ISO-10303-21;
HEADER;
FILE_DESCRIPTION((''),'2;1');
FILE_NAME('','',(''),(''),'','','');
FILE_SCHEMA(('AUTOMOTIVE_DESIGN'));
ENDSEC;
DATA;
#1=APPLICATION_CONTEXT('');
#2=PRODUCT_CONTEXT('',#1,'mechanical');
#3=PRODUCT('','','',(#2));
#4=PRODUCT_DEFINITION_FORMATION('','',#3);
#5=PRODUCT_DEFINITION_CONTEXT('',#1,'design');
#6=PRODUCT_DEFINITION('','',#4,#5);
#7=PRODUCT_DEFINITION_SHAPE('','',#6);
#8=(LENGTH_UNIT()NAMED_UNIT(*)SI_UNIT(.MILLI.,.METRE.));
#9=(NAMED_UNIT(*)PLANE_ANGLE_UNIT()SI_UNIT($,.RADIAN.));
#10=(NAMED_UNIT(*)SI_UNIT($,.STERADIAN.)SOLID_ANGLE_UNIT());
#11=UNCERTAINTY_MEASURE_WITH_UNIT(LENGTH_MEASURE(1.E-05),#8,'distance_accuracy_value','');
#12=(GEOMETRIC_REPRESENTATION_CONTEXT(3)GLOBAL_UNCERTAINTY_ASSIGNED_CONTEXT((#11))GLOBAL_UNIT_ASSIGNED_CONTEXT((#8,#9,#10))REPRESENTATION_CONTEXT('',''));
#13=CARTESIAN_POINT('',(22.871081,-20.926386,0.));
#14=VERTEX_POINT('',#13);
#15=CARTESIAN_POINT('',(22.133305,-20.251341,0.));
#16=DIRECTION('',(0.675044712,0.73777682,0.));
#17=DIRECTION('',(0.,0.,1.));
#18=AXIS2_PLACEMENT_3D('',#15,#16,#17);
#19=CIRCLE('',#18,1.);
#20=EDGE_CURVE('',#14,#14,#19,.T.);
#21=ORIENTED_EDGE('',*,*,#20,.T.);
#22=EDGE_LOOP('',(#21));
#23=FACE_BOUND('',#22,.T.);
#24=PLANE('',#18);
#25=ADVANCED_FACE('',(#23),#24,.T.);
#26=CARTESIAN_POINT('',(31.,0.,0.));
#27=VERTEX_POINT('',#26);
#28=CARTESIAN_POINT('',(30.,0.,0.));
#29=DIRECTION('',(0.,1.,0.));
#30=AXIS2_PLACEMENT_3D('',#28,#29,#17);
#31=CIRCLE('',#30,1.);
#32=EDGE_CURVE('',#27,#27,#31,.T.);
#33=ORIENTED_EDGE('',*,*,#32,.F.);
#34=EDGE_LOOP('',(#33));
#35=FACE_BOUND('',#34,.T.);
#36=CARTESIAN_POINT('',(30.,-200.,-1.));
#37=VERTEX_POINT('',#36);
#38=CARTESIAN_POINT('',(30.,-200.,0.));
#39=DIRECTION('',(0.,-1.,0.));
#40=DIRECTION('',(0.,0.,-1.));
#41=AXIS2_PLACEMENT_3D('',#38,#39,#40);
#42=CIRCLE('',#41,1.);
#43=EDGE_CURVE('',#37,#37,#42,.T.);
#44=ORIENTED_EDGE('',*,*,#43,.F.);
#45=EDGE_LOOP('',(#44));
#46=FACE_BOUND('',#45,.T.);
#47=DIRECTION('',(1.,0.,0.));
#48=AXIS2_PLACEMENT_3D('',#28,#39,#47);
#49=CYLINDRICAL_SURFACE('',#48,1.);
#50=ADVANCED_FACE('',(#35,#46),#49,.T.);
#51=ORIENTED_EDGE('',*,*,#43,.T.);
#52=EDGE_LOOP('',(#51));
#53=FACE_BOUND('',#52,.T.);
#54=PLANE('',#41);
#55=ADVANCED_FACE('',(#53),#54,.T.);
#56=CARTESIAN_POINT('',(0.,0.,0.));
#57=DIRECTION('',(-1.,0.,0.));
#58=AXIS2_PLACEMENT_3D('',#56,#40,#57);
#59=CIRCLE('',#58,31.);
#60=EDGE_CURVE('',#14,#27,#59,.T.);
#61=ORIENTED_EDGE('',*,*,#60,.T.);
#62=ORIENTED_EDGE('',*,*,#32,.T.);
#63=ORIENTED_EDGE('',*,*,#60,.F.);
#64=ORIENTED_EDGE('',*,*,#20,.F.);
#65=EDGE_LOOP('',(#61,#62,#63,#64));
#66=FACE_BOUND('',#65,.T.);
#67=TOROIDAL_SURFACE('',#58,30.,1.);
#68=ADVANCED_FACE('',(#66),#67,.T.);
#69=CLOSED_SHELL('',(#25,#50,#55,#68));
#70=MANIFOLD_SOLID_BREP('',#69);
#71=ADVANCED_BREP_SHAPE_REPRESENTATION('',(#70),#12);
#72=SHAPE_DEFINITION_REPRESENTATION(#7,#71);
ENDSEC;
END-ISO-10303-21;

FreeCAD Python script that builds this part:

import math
import FreeCAD as App
import Part
import Sketcher
from FreeCAD import Vector

doc = App.newDocument("Part")
body = doc.addObject("PartDesign::Body", "Body")

sketch1 = body.newObject("Sketcher::SketchObject", "Sketch")
sketch1.AttachmentSupport = (doc.getObject("XZ_Plane"), [""])
sketch1.MapMode = "FlatFace"
sketch1.AttachmentOffset = App.Placement(Vector(0, 0, 100), App.Rotation())
sketch1.addGeometry(Part.Circle(Vector(30, 0, 0), Vector(0, 0, 1), 1), False)
sketch1.addConstraint([
    Sketcher.Constraint("PointOnObject", 0, 3, -1),
    Sketcher.Constraint("Diameter", 0, 2.0),
    Sketcher.Constraint("DistanceX", -1, 1, 0, 3, 30.0),
])

sketch2 = body.newObject("Sketcher::SketchObject", "Sketch001")
sketch2.AttachmentSupport = (doc.getObject("XY_Plane"), [""])
sketch2.MapMode = "FlatFace"
sketch2.addGeometry([
    Part.LineSegment(Vector(30, -100, 0), Vector(30, 0, 0)),
    Part.ArcOfCircle(Part.Circle(Vector(0, 0, 0), Vector(0, 0, 1), 30), math.radians(0), math.radians(317.542378)),
], False)
sketch2.addConstraint([
    Sketcher.Constraint("Tangent", 0, 2, 1, 1),
    Sketcher.Constraint("Vertical", 0),
    Sketcher.Constraint("Coincident", 1, 3, -1, 1),
    Sketcher.Constraint("Radius", 1, 30.0),
    Sketcher.Constraint("DistanceY", 0, 1, 0, 2, 100.0),
    Sketcher.Constraint("DistanceY", 1, 2, -1, 1, 20.251341),
])
doc.recompute()

additivepipe = body.newObject("PartDesign::AdditivePipe", "AdditivePipe")
additivepipe.Profile = sketch1
additivepipe.Spine = (sketch2, ["Edge1", "Edge2"])

sketch3 = body.newObject("Sketcher::SketchObject", "Sketch002")
sketch3.AttachmentSupport = (doc.getObject("XZ_Plane"), [""])
sketch3.MapMode = "FlatFace"
sketch3.AttachmentOffset = App.Placement(Vector(0, 0, 100), App.Rotation())
sketch3.addGeometry(Part.Circle(Vector(30, 0, 0), Vector(0, 0, 1), 1), False)
sketch3.addConstraint([
    Sketcher.Constraint("PointOnObject", 0, 3, -1),
    Sketcher.Constraint("Diameter", 0, 2.0),
    Sketcher.Constraint("DistanceX", -1, 1, 0, 3, 30.0),
])
pad1 = body.newObject("PartDesign::Pad", "Pad")
pad1.Profile = sketch3
pad1.Length = 100

doc.recompute()
